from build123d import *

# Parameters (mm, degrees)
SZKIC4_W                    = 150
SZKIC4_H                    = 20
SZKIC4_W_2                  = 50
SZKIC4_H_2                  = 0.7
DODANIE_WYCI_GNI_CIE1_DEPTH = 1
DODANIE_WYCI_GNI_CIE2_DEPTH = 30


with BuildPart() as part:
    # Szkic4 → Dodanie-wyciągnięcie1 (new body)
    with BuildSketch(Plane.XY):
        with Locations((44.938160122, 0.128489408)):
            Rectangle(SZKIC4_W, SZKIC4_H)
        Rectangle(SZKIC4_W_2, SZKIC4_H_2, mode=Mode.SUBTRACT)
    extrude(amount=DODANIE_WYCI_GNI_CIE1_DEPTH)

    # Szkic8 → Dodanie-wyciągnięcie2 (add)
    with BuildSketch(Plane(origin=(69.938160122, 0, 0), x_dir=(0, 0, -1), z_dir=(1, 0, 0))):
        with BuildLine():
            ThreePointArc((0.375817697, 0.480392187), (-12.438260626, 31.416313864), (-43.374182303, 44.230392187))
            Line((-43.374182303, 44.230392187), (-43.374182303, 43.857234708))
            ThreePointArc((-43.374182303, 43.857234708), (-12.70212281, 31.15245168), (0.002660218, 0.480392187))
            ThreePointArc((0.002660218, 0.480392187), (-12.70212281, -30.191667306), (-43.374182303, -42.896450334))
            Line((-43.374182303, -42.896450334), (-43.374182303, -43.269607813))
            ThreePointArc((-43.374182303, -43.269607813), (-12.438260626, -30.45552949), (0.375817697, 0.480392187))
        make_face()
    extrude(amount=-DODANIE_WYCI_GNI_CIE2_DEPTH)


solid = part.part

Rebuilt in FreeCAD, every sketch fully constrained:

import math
import FreeCAD as App
import Part
import Sketcher
from FreeCAD import Vector


def add_polygon(sketch, points):
    """Adds a closed chain of lines whose ends are joined by coincident constraints."""
    first, n = sketch.GeometryCount, len(points)
    for a, b in zip(points, points[1:] + points[:1]):
        sketch.addGeometry(Part.LineSegment(App.Vector(*a, 0), App.Vector(*b, 0)), False)
    for i in range(n):
        sketch.addConstraint(Sketcher.Constraint("Coincident", first + i, 2, first + (i + 1) % n, 1))

doc = App.newDocument("Part")
params = doc.addObject("Spreadsheet::Sheet", "Params")
for row, (alias, value) in enumerate([
    ("sketch1_width", "150 mm"),
    ("sketch1_width2", "50 mm"),
    ("sketch1_height", "20 mm"),
    ("sketch1_height2", "0.7 mm"),
    ("pad1_length", "1 mm"),
    ("sketch2_radius", "43.75 mm"),
    ("pad2_length", "30 mm"),
], start=1):
    params.set(f"A{row}", alias)
    params.set(f"B{row}", "=" + value)
    params.setAlias(f"B{row}", alias)

body = doc.addObject("PartDesign::Body", "Body")

sketch1 = doc.addObject("Sketcher::SketchObject", "Sketch")
body.addObject(sketch1)
sketch1.AttachmentSupport = (doc.XY_Plane, [""])
sketch1.MapMode = "FlatFace"
add_polygon(sketch1, [(-30.06184, 10.128489), (-30.06184, -9.871511), (119.93816, -9.871511), (119.93816, 10.128489)])
add_polygon(sketch1, [(25, -0.35), (-25, -0.35), (-25, 0.35), (25, 0.35)])
sketch1.addConstraint(Sketcher.Constraint("Vertical", 0))
sketch1.addConstraint(Sketcher.Constraint("Horizontal", 1))
sketch1.addConstraint(Sketcher.Constraint("Vertical", 2))
sketch1.addConstraint(Sketcher.Constraint("Horizontal", 3))
sketch1.addConstraint(Sketcher.Constraint("Horizontal", 4))
sketch1.addConstraint(Sketcher.Constraint("Vertical", 5))
sketch1.addConstraint(Sketcher.Constraint("Horizontal", 6))
sketch1.addConstraint(Sketcher.Constraint("Vertical", 7))
sketch1.addConstraint(Sketcher.Constraint("Symmetric", 4, 2, 6, 2, -1, 1))
sketch1.addConstraint(Sketcher.Constraint("DistanceX", 1, 1, 1, 2, 150.0))
sketch1.addConstraint(Sketcher.Constraint("DistanceX", 4, 2, 4, 1, 50.0))
sketch1.addConstraint(Sketcher.Constraint("DistanceY", 0, 2, 0, 1, 20.0))
sketch1.addConstraint(Sketcher.Constraint("DistanceY", 5, 1, 5, 2, 0.7))
sketch1.addConstraint(Sketcher.Constraint("DistanceX", 0, 2, -1, 1, 30.06184))
sketch1.addConstraint(Sketcher.Constraint("DistanceY", 0, 2, -1, 1, 9.871511))
sketch1.setExpression("Constraints[17]", "Params.sketch1_width")
sketch1.setExpression("Constraints[18]", "Params.sketch1_width2")
sketch1.setExpression("Constraints[19]", "Params.sketch1_height")
sketch1.setExpression("Constraints[20]", "Params.sketch1_height2")
pad1 = doc.addObject("PartDesign::Pad", "Pad")
body.addObject(pad1)
pad1.Profile = sketch1
pad1.setExpression("Length", "Params.pad1_length")

sketch2 = doc.addObject("Sketcher::SketchObject", "Sketch001")
body.addObject(sketch2)
sketch2.AttachmentSupport = (doc.YZ_Plane, [""])
sketch2.MapMode = "FlatFace"
sketch2.AttachmentOffset = App.Placement(Vector(0, 0, 69.93816), App.Rotation())
sketch2.addGeometry(Part.ArcOfCircle(Part.Circle(Vector(0.480392, 43.374182, 0), Vector(0, 0, 1), 43.75), math.radians(-90), math.radians(0)), False)
sketch2.addGeometry(Part.LineSegment(Vector(44.230392, 43.374182, 0), Vector(43.857235, 43.374182, 0)), False)
sketch2.addGeometry(Part.ArcOfCircle(Part.Circle(Vector(0.480392, 43.374182, 0), Vector(0, 0, 1), 43.376843), math.radians(-90), math.radians(0)), False)
sketch2.addGeometry(Part.ArcOfCircle(Part.Circle(Vector(0.480392, 43.374182, 0), Vector(0, 0, 1), 43.376843), math.radians(180), math.radians(270)), False)
sketch2.addGeometry(Part.LineSegment(Vector(-42.89645, 43.374182, 0), Vector(-43.269608, 43.374182, 0)), False)
sketch2.addGeometry(Part.ArcOfCircle(Part.Circle(Vector(0.480392, 43.374182, 0), Vector(0, 0, 1), 43.75), math.radians(180), math.radians(270)), False)
sketch2.addConstraint(Sketcher.Constraint("Coincident", 0, 2, 1, 1))
sketch2.addConstraint(Sketcher.Constraint("Coincident", 1, 2, 2, 2))
sketch2.addConstraint(Sketcher.Constraint("Tangent", 2, 1, 3, 2))
sketch2.addConstraint(Sketcher.Constraint("Coincident", 3, 1, 4, 1))
sketch2.addConstraint(Sketcher.Constraint("Coincident", 4, 2, 5, 1))
sketch2.addConstraint(Sketcher.Constraint("Tangent", 5, 2, 0, 1))
sketch2.addConstraint(Sketcher.Constraint("Horizontal", 1))
sketch2.addConstraint(Sketcher.Constraint("Horizontal", 4))
sketch2.addConstraint(Sketcher.Constraint("Coincident", 2, 3, 0, 3))
sketch2.addConstraint(Sketcher.Constraint("Equal", 2, 3))
sketch2.addConstraint(Sketcher.Constraint("Equal", 0, 5))
sketch2.addConstraint(Sketcher.Constraint("Horizontal", 5, 3, 0, 2))
sketch2.addConstraint(Sketcher.Constraint("Horizontal", 1, 2, 3, 1))
sketch2.addConstraint(Sketcher.Constraint("Vertical", 5, 3, 2, 1))
sketch2.addConstraint(Sketcher.Constraint("Vertical", 2, 1, 5, 2))
sketch2.addConstraint(Sketcher.Constraint("Radius", 0, 43.75))
sketch2.addConstraint(Sketcher.Constraint("Radius", 2, 43.376843))
sketch2.addConstraint(Sketcher.Constraint("DistanceY", 2, 1, -1, 1, 0.00266))
sketch2.addConstraint(Sketcher.Constraint("DistanceX", 3, 1, -1, 1, 42.89645))
sketch2.setExpression("Constraints[15]", "Params.sketch2_radius")
pad2 = doc.addObject("PartDesign::Pad", "Pad001")
body.addObject(pad2)
pad2.Profile = sketch2
pad2.setExpression("Length", "Params.pad2_length")
pad2.Reversed = True

doc.recompute()
